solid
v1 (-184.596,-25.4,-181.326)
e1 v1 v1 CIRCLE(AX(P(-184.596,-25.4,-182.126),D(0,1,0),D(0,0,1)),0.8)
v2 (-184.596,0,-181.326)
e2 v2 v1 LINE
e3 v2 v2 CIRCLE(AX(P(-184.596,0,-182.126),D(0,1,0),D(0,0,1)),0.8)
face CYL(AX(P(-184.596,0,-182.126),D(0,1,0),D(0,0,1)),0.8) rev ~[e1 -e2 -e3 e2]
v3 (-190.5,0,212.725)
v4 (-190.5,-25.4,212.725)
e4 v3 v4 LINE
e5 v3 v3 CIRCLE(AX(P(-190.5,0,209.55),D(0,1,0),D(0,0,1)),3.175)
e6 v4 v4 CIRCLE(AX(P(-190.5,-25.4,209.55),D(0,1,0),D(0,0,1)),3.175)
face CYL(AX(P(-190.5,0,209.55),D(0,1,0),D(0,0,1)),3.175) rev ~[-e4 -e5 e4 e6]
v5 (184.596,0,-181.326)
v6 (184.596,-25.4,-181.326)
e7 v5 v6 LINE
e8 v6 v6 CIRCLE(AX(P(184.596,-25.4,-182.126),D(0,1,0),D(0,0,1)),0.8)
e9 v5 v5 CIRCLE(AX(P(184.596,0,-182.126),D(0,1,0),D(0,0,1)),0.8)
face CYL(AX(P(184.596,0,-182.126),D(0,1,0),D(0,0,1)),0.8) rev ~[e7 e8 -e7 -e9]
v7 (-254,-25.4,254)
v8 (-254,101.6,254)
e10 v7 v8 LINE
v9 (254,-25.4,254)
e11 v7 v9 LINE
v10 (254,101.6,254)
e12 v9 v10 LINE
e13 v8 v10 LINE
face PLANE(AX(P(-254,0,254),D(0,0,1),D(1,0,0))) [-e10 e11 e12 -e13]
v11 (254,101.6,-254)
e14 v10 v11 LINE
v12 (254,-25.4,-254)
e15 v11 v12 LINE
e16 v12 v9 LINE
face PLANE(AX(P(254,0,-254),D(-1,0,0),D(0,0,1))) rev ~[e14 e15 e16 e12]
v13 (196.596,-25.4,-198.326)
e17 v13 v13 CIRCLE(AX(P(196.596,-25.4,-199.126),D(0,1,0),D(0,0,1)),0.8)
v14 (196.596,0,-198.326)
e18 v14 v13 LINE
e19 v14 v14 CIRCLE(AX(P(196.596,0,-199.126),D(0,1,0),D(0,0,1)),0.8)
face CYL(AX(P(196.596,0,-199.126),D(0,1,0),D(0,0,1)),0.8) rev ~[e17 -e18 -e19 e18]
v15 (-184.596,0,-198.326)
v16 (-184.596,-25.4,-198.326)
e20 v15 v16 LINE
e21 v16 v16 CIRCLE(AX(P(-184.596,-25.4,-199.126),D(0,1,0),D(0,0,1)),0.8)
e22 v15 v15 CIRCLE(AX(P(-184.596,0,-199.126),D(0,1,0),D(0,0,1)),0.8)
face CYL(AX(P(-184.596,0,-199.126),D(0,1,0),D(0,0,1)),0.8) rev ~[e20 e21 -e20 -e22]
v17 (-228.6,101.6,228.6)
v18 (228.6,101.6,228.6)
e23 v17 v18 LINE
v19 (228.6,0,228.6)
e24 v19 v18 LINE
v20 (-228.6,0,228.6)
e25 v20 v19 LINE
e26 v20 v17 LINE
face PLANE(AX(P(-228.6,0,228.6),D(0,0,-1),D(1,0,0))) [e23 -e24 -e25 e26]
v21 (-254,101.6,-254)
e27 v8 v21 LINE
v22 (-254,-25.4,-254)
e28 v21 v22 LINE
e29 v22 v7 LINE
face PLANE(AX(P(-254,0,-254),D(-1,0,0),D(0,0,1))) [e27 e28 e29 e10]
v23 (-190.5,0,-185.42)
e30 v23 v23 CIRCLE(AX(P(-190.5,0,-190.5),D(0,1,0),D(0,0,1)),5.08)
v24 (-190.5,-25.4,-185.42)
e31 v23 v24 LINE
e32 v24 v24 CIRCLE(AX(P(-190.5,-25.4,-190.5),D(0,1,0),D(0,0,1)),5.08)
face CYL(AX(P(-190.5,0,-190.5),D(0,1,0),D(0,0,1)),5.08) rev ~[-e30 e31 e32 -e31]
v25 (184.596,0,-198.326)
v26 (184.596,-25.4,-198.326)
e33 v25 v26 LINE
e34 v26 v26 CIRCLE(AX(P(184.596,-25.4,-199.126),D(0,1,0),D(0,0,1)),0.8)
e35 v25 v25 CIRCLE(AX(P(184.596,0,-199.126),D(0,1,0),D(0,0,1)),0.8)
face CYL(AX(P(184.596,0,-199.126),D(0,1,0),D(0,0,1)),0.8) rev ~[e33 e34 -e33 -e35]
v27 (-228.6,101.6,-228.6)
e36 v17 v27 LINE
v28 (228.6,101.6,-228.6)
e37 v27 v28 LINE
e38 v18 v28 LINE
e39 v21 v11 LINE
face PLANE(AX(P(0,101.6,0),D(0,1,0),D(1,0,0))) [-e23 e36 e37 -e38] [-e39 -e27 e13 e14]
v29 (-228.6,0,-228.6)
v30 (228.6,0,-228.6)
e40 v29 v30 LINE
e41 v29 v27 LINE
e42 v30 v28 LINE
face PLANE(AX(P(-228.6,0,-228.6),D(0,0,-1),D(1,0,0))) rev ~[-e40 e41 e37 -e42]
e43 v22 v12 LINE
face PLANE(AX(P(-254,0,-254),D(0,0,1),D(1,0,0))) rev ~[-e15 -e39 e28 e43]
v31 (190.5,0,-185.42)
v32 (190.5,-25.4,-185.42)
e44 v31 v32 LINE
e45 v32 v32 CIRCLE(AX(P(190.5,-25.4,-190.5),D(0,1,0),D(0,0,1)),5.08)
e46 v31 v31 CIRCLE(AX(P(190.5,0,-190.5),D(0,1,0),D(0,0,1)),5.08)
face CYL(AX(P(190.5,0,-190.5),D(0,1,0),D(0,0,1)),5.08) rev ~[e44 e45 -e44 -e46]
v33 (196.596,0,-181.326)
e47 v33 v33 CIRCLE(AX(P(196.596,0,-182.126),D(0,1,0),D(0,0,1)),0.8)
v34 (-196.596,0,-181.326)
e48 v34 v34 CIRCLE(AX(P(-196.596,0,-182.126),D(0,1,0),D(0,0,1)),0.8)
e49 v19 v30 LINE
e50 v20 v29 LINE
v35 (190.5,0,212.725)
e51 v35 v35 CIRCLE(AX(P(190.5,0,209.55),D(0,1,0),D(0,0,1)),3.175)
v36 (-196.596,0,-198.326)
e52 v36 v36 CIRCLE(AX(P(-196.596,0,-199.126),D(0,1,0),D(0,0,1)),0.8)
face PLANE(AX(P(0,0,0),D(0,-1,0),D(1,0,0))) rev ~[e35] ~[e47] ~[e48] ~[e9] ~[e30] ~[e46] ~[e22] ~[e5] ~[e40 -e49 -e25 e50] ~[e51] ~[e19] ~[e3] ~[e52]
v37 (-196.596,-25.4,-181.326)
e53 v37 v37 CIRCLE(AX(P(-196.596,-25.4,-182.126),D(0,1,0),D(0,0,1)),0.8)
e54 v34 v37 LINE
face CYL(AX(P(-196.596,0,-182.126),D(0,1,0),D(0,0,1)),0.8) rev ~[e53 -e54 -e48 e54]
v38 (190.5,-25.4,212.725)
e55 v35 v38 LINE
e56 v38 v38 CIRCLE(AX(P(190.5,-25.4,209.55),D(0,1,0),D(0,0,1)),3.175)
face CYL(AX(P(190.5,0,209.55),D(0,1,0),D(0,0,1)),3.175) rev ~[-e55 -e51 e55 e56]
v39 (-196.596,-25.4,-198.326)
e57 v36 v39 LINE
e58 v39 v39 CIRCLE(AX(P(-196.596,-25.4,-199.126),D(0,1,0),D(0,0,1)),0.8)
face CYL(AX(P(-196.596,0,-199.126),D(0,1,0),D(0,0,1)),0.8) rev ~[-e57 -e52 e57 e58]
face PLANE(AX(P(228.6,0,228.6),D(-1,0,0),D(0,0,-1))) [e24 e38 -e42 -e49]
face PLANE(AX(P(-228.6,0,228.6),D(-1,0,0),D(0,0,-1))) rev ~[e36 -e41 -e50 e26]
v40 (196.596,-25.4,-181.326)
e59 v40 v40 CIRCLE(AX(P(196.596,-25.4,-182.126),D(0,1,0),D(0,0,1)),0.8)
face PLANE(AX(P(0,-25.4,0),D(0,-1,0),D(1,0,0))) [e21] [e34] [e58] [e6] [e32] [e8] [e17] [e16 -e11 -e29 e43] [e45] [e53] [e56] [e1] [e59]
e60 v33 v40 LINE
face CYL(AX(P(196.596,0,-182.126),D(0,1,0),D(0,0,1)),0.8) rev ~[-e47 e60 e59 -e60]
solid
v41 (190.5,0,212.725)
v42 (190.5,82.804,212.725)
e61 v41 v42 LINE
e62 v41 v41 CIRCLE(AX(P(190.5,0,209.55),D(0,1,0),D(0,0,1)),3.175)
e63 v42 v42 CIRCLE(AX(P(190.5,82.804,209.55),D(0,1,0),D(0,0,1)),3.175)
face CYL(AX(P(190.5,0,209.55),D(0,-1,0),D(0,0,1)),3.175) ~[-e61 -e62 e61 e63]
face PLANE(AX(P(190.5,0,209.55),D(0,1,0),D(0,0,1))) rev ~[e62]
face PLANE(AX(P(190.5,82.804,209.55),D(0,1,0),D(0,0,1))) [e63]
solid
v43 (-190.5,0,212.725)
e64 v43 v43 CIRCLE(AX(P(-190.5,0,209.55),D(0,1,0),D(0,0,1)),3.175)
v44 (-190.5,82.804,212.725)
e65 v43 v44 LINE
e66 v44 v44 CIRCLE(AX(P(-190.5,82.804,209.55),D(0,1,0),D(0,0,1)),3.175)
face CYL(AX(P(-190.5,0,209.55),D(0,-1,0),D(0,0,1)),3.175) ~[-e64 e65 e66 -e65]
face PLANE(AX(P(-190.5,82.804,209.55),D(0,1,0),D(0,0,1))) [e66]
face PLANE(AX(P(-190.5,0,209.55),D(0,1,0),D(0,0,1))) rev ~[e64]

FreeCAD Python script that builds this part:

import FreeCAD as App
import Part
import Sketcher

V = App.Vector
Q = App.Units.Quantity


def add_polygon(sketch, points):
    """Adds a closed chain of lines whose ends are joined by coincident constraints."""
    first, n = sketch.GeometryCount, len(points)
    for a, b in zip(points, points[1:] + points[:1]):
        sketch.addGeometry(Part.LineSegment(App.Vector(*a, 0), App.Vector(*b, 0)), False)
    for i in range(n):
        sketch.addConstraint(Sketcher.Constraint("Coincident", first + i, 2, first + (i + 1) % n, 1))

doc = App.newDocument("Part")
params = doc.addObject("Spreadsheet::Sheet", "Params")
for row, (alias, value) in enumerate([
    ("sketch1_width", "20 in"),
    ("sketch1_width2", "18 in"),
    ("pad1_length", "4 in"),
    ("sketch2_width", "20 in"),
    ("pad2_length", "1 in"),
    ("sketch3_diameter", "0.4 in"),
    ("sketch3_diameter2", "0.25 in"),
    ("pocket1_length", "1.15 in"),
    ("sketch4_diameter", "0.25 in"),
    ("pad3_length", "3.26 in"),
    ("sketch5_diameter", "0.25 in"),
    ("pad4_length", "3.26 in"),
], start=1):
    params.set(f"A{row}", alias)
    params.set(f"B{row}", "=" + value)
    params.setAlias(f"B{row}", alias)

body = doc.addObject("PartDesign::Body", "Body")

# Sketch on XZ plane
sketch1 = body.newObject("Sketcher::SketchObject", "Sketch")
sketch1.AttachmentSupport = (doc.getObject("XZ_Plane"), [""])
sketch1.MapMode = "FlatFace"
add_polygon(sketch1, [(-254, -254), (-254, 254), (254, 254), (254, -254)])  # lines 0-3
add_polygon(sketch1, [(229, 229), (-229, 229), (-229, -229), (229, -229)])  # lines 4-7
sketch1.addConstraint([
    Sketcher.Constraint("Vertical", 0),
    Sketcher.Constraint("Horizontal", 1),
    Sketcher.Constraint("Vertical", 2),
    Sketcher.Constraint("Horizontal", 3),
    Sketcher.Constraint("Horizontal", 4),
    Sketcher.Constraint("Vertical", 5),
    Sketcher.Constraint("Horizontal", 6),
    Sketcher.Constraint("Vertical", 7),
    Sketcher.Constraint("Symmetric", 0, 2, 2, 2, -1, 1),
    Sketcher.Constraint("Symmetric", 4, 2, 6, 2, -1, 1),
    Sketcher.Constraint("Equal", 3, 0),
    Sketcher.Constraint("Equal", 6, 5),
    Sketcher.Constraint("DistanceX", 1, 1, 1, 2, Q("20 in")),
    Sketcher.Constraint("DistanceX", 4, 2, 4, 1, Q("18 in")),
])
sketch1.setExpression("Constraints[20]", "Params.sketch1_width")
sketch1.setExpression("Constraints[21]", "Params.sketch1_width2")
pad1 = body.newObject("PartDesign::Pad", "Pad")
pad1.Profile = sketch1
pad1.setExpression("Length", "Params.pad1_length")
pad1.Reversed = True

# Sketch on XZ plane
sketch2 = body.newObject("Sketcher::SketchObject", "Sketch001")
sketch2.AttachmentSupport = (doc.getObject("XZ_Plane"), [""])
sketch2.MapMode = "FlatFace"
add_polygon(sketch2, [(-254, 254), (-254, -254), (254, -254), (254, 254)])  # lines 0-3
sketch2.addConstraint([
    Sketcher.Constraint("Vertical", 0),
    Sketcher.Constraint("Horizontal", 1),
    Sketcher.Constraint("Vertical", 2),
    Sketcher.Constraint("Horizontal", 3),
    Sketcher.Constraint("Symmetric", 0, 2, 2, 2, -1, 1),
    Sketcher.Constraint("Equal", 3, 0),
    Sketcher.Constraint("DistanceX", 1, 1, 1, 2, Q("20 in")),
])
sketch2.setExpression("Constraints[10]", "Params.sketch2_width")
pad2 = body.newObject("PartDesign::Pad", "Pad001")
pad2.Profile = sketch2
pad2.setExpression("Length", "Params.pad2_length")

# Sketch on XZ plane
sketch3 = body.newObject("Sketcher::SketchObject", "Sketch002")
sketch3.AttachmentSupport = (doc.getObject("XZ_Plane"), [""])
sketch3.MapMode = "FlatFace"
sketch3.addGeometry([
    Part.Circle(V(-184.6, -182.1, 0), V(0, 0, 1), 0.8),  # 0
    Part.Circle(V(-184.6, -199.1, 0), V(0, 0, 1), 0.8),  # 1
    Part.Circle(V(-196.6, -199.1, 0), V(0, 0, 1), 0.8),  # 2
    Part.Circle(V(-196.6, -182.1, 0), V(0, 0, 1), 0.8),  # 3
    Part.Circle(V(-190.5, -190.5, 0), V(0, 0, 1), 5.1),  # 4
    Part.Circle(V(190.5, -190.5, 0), V(0, 0, 1), 5.1),  # 5
    Part.Circle(V(196.6, -182.1, 0), V(0, 0, 1), 0.8),  # 6
    Part.Circle(V(196.6, -199.1, 0), V(0, 0, 1), 0.8),  # 7
    Part.Circle(V(184.6, -199.1, 0), V(0, 0, 1), 0.8),  # 8
    Part.Circle(V(184.6, -182.1, 0), V(0, 0, 1), 0.8),  # 9
    Part.Circle(V(-190.5, 209.6, 0), V(0, 0, 1), 3.2),  # 10
    Part.Circle(V(190.5, 209.6, 0), V(0, 0, 1), 3.2),  # 11
], False)
sketch3.addConstraint([
    Sketcher.Constraint("Equal", 0, 1),
    Sketcher.Constraint("Equal", 1, 2),
    Sketcher.Constraint("Equal", 2, 3),
    Sketcher.Constraint("Equal", 4, 5),
    Sketcher.Constraint("Equal", 3, 6),
    Sketcher.Constraint("Equal", 6, 7),
    Sketcher.Constraint("Equal", 7, 8),
    Sketcher.Constraint("Equal", 8, 9),
    Sketcher.Constraint("Equal", 10, 11),
    Sketcher.Constraint("Symmetric", 4, 3, 5, 3, -2),
    Sketcher.Constraint("Symmetric", 3, 3, 6, 3, -2),
    Sketcher.Constraint("Symmetric", 2, 3, 7, 3, -2),
    Sketcher.Constraint("Symmetric", 1, 3, 8, 3, -2),
    Sketcher.Constraint("Symmetric", 0, 3, 9, 3, -2),
    Sketcher.Constraint("Symmetric", 10, 3, 11, 3, -2),
    Sketcher.Constraint("Horizontal", 1, 3, 2, 3),
    Sketcher.Constraint("Horizontal", 0, 3, 3, 3),
    Sketcher.Constraint("Vertical", 0, 3, 1, 3),
    Sketcher.Constraint("Vertical", 2, 3, 3, 3),
    Sketcher.Constraint("Vertical", 4, 3, 10, 3),
    Sketcher.Constraint("Diameter", 4, Q("0.4 in")),
    Sketcher.Constraint("Diameter", 10, Q("0.25 in")),
    Sketcher.Constraint("DistanceX", 4, 3, 5, 3, Q("15 in")),
    Sketcher.Constraint("DistanceY", 4, 3, -1, 1, Q("7.5 in")),
    Sketcher.Constraint("Diameter", 0, 1.6),
    Sketcher.Constraint("DistanceX", 2, 3, -1, 1, Q("7.74 in")),
    Sketcher.Constraint("DistanceY", -1, 1, 10, 3, Q("8.25 in")),
    Sketcher.Constraint("DistanceX", 0, 3, -1, 1, 184.596),
    Sketcher.Constraint("DistanceY", 0, 3, -1, 1, 182.126),
    Sketcher.Constraint("DistanceY", 1, 3, -1, 1, 199.126),
])
sketch3.setExpression("Constraints[20]", "Params.sketch3_diameter")
sketch3.setExpression("Constraints[21]", "Params.sketch3_diameter2")
pocket1 = body.newObject("PartDesign::Pocket", "Pocket")
pocket1.Profile = sketch3
pocket1.setExpression("Length", "Params.pocket1_length")
pocket1.Reversed = True
body2 = doc.addObject("PartDesign::Body", "Body001")

# Sketch on XZ plane
sketch4 = body2.newObject("Sketcher::SketchObject", "Sketch003")
sketch4.AttachmentSupport = (doc.getObject("XZ_Plane001"), [""])
sketch4.MapMode = "FlatFace"
sketch4.addGeometry(Part.Circle(V(190.5, 209.6, 0), V(0, 0, 1), 3.2), False)
sketch4.addConstraint([
    Sketcher.Constraint("Diameter", 0, Q("0.25 in")),
    Sketcher.Constraint("DistanceX", -1, 1, 0, 3, Q("7.5 in")),
    Sketcher.Constraint("DistanceY", -1, 1, 0, 3, Q("8.25 in")),
])
sketch4.setExpression("Constraints[0]", "Params.sketch4_diameter")
pad3 = body2.newObject("PartDesign::Pad", "Pad002")
pad3.Profile = sketch4
pad3.setExpression("Length", "Params.pad3_length")
pad3.Reversed = True
body3 = doc.addObject("PartDesign::Body", "Body002")

# Sketch on XZ plane
sketch5 = body3.newObject("Sketcher::SketchObject", "Sketch004")
sketch5.AttachmentSupport = (doc.getObject("XZ_Plane002"), [""])
sketch5.MapMode = "FlatFace"
sketch5.addGeometry(Part.Circle(V(-190.5, 209.6, 0), V(0, 0, 1), 3.2), False)
sketch5.addConstraint([
    Sketcher.Constraint("Diameter", 0, Q("0.25 in")),
    Sketcher.Constraint("DistanceX", 0, 3, -1, 1, Q("7.5 in")),
    Sketcher.Constraint("DistanceY", -1, 1, 0, 3, Q("8.25 in")),
])
sketch5.setExpression("Constraints[0]", "Params.sketch5_diameter")
pad4 = body3.newObject("PartDesign::Pad", "Pad003")
pad4.Profile = sketch5
pad4.setExpression("Length", "Params.pad4_length")
pad4.Reversed = True

doc.recompute()
